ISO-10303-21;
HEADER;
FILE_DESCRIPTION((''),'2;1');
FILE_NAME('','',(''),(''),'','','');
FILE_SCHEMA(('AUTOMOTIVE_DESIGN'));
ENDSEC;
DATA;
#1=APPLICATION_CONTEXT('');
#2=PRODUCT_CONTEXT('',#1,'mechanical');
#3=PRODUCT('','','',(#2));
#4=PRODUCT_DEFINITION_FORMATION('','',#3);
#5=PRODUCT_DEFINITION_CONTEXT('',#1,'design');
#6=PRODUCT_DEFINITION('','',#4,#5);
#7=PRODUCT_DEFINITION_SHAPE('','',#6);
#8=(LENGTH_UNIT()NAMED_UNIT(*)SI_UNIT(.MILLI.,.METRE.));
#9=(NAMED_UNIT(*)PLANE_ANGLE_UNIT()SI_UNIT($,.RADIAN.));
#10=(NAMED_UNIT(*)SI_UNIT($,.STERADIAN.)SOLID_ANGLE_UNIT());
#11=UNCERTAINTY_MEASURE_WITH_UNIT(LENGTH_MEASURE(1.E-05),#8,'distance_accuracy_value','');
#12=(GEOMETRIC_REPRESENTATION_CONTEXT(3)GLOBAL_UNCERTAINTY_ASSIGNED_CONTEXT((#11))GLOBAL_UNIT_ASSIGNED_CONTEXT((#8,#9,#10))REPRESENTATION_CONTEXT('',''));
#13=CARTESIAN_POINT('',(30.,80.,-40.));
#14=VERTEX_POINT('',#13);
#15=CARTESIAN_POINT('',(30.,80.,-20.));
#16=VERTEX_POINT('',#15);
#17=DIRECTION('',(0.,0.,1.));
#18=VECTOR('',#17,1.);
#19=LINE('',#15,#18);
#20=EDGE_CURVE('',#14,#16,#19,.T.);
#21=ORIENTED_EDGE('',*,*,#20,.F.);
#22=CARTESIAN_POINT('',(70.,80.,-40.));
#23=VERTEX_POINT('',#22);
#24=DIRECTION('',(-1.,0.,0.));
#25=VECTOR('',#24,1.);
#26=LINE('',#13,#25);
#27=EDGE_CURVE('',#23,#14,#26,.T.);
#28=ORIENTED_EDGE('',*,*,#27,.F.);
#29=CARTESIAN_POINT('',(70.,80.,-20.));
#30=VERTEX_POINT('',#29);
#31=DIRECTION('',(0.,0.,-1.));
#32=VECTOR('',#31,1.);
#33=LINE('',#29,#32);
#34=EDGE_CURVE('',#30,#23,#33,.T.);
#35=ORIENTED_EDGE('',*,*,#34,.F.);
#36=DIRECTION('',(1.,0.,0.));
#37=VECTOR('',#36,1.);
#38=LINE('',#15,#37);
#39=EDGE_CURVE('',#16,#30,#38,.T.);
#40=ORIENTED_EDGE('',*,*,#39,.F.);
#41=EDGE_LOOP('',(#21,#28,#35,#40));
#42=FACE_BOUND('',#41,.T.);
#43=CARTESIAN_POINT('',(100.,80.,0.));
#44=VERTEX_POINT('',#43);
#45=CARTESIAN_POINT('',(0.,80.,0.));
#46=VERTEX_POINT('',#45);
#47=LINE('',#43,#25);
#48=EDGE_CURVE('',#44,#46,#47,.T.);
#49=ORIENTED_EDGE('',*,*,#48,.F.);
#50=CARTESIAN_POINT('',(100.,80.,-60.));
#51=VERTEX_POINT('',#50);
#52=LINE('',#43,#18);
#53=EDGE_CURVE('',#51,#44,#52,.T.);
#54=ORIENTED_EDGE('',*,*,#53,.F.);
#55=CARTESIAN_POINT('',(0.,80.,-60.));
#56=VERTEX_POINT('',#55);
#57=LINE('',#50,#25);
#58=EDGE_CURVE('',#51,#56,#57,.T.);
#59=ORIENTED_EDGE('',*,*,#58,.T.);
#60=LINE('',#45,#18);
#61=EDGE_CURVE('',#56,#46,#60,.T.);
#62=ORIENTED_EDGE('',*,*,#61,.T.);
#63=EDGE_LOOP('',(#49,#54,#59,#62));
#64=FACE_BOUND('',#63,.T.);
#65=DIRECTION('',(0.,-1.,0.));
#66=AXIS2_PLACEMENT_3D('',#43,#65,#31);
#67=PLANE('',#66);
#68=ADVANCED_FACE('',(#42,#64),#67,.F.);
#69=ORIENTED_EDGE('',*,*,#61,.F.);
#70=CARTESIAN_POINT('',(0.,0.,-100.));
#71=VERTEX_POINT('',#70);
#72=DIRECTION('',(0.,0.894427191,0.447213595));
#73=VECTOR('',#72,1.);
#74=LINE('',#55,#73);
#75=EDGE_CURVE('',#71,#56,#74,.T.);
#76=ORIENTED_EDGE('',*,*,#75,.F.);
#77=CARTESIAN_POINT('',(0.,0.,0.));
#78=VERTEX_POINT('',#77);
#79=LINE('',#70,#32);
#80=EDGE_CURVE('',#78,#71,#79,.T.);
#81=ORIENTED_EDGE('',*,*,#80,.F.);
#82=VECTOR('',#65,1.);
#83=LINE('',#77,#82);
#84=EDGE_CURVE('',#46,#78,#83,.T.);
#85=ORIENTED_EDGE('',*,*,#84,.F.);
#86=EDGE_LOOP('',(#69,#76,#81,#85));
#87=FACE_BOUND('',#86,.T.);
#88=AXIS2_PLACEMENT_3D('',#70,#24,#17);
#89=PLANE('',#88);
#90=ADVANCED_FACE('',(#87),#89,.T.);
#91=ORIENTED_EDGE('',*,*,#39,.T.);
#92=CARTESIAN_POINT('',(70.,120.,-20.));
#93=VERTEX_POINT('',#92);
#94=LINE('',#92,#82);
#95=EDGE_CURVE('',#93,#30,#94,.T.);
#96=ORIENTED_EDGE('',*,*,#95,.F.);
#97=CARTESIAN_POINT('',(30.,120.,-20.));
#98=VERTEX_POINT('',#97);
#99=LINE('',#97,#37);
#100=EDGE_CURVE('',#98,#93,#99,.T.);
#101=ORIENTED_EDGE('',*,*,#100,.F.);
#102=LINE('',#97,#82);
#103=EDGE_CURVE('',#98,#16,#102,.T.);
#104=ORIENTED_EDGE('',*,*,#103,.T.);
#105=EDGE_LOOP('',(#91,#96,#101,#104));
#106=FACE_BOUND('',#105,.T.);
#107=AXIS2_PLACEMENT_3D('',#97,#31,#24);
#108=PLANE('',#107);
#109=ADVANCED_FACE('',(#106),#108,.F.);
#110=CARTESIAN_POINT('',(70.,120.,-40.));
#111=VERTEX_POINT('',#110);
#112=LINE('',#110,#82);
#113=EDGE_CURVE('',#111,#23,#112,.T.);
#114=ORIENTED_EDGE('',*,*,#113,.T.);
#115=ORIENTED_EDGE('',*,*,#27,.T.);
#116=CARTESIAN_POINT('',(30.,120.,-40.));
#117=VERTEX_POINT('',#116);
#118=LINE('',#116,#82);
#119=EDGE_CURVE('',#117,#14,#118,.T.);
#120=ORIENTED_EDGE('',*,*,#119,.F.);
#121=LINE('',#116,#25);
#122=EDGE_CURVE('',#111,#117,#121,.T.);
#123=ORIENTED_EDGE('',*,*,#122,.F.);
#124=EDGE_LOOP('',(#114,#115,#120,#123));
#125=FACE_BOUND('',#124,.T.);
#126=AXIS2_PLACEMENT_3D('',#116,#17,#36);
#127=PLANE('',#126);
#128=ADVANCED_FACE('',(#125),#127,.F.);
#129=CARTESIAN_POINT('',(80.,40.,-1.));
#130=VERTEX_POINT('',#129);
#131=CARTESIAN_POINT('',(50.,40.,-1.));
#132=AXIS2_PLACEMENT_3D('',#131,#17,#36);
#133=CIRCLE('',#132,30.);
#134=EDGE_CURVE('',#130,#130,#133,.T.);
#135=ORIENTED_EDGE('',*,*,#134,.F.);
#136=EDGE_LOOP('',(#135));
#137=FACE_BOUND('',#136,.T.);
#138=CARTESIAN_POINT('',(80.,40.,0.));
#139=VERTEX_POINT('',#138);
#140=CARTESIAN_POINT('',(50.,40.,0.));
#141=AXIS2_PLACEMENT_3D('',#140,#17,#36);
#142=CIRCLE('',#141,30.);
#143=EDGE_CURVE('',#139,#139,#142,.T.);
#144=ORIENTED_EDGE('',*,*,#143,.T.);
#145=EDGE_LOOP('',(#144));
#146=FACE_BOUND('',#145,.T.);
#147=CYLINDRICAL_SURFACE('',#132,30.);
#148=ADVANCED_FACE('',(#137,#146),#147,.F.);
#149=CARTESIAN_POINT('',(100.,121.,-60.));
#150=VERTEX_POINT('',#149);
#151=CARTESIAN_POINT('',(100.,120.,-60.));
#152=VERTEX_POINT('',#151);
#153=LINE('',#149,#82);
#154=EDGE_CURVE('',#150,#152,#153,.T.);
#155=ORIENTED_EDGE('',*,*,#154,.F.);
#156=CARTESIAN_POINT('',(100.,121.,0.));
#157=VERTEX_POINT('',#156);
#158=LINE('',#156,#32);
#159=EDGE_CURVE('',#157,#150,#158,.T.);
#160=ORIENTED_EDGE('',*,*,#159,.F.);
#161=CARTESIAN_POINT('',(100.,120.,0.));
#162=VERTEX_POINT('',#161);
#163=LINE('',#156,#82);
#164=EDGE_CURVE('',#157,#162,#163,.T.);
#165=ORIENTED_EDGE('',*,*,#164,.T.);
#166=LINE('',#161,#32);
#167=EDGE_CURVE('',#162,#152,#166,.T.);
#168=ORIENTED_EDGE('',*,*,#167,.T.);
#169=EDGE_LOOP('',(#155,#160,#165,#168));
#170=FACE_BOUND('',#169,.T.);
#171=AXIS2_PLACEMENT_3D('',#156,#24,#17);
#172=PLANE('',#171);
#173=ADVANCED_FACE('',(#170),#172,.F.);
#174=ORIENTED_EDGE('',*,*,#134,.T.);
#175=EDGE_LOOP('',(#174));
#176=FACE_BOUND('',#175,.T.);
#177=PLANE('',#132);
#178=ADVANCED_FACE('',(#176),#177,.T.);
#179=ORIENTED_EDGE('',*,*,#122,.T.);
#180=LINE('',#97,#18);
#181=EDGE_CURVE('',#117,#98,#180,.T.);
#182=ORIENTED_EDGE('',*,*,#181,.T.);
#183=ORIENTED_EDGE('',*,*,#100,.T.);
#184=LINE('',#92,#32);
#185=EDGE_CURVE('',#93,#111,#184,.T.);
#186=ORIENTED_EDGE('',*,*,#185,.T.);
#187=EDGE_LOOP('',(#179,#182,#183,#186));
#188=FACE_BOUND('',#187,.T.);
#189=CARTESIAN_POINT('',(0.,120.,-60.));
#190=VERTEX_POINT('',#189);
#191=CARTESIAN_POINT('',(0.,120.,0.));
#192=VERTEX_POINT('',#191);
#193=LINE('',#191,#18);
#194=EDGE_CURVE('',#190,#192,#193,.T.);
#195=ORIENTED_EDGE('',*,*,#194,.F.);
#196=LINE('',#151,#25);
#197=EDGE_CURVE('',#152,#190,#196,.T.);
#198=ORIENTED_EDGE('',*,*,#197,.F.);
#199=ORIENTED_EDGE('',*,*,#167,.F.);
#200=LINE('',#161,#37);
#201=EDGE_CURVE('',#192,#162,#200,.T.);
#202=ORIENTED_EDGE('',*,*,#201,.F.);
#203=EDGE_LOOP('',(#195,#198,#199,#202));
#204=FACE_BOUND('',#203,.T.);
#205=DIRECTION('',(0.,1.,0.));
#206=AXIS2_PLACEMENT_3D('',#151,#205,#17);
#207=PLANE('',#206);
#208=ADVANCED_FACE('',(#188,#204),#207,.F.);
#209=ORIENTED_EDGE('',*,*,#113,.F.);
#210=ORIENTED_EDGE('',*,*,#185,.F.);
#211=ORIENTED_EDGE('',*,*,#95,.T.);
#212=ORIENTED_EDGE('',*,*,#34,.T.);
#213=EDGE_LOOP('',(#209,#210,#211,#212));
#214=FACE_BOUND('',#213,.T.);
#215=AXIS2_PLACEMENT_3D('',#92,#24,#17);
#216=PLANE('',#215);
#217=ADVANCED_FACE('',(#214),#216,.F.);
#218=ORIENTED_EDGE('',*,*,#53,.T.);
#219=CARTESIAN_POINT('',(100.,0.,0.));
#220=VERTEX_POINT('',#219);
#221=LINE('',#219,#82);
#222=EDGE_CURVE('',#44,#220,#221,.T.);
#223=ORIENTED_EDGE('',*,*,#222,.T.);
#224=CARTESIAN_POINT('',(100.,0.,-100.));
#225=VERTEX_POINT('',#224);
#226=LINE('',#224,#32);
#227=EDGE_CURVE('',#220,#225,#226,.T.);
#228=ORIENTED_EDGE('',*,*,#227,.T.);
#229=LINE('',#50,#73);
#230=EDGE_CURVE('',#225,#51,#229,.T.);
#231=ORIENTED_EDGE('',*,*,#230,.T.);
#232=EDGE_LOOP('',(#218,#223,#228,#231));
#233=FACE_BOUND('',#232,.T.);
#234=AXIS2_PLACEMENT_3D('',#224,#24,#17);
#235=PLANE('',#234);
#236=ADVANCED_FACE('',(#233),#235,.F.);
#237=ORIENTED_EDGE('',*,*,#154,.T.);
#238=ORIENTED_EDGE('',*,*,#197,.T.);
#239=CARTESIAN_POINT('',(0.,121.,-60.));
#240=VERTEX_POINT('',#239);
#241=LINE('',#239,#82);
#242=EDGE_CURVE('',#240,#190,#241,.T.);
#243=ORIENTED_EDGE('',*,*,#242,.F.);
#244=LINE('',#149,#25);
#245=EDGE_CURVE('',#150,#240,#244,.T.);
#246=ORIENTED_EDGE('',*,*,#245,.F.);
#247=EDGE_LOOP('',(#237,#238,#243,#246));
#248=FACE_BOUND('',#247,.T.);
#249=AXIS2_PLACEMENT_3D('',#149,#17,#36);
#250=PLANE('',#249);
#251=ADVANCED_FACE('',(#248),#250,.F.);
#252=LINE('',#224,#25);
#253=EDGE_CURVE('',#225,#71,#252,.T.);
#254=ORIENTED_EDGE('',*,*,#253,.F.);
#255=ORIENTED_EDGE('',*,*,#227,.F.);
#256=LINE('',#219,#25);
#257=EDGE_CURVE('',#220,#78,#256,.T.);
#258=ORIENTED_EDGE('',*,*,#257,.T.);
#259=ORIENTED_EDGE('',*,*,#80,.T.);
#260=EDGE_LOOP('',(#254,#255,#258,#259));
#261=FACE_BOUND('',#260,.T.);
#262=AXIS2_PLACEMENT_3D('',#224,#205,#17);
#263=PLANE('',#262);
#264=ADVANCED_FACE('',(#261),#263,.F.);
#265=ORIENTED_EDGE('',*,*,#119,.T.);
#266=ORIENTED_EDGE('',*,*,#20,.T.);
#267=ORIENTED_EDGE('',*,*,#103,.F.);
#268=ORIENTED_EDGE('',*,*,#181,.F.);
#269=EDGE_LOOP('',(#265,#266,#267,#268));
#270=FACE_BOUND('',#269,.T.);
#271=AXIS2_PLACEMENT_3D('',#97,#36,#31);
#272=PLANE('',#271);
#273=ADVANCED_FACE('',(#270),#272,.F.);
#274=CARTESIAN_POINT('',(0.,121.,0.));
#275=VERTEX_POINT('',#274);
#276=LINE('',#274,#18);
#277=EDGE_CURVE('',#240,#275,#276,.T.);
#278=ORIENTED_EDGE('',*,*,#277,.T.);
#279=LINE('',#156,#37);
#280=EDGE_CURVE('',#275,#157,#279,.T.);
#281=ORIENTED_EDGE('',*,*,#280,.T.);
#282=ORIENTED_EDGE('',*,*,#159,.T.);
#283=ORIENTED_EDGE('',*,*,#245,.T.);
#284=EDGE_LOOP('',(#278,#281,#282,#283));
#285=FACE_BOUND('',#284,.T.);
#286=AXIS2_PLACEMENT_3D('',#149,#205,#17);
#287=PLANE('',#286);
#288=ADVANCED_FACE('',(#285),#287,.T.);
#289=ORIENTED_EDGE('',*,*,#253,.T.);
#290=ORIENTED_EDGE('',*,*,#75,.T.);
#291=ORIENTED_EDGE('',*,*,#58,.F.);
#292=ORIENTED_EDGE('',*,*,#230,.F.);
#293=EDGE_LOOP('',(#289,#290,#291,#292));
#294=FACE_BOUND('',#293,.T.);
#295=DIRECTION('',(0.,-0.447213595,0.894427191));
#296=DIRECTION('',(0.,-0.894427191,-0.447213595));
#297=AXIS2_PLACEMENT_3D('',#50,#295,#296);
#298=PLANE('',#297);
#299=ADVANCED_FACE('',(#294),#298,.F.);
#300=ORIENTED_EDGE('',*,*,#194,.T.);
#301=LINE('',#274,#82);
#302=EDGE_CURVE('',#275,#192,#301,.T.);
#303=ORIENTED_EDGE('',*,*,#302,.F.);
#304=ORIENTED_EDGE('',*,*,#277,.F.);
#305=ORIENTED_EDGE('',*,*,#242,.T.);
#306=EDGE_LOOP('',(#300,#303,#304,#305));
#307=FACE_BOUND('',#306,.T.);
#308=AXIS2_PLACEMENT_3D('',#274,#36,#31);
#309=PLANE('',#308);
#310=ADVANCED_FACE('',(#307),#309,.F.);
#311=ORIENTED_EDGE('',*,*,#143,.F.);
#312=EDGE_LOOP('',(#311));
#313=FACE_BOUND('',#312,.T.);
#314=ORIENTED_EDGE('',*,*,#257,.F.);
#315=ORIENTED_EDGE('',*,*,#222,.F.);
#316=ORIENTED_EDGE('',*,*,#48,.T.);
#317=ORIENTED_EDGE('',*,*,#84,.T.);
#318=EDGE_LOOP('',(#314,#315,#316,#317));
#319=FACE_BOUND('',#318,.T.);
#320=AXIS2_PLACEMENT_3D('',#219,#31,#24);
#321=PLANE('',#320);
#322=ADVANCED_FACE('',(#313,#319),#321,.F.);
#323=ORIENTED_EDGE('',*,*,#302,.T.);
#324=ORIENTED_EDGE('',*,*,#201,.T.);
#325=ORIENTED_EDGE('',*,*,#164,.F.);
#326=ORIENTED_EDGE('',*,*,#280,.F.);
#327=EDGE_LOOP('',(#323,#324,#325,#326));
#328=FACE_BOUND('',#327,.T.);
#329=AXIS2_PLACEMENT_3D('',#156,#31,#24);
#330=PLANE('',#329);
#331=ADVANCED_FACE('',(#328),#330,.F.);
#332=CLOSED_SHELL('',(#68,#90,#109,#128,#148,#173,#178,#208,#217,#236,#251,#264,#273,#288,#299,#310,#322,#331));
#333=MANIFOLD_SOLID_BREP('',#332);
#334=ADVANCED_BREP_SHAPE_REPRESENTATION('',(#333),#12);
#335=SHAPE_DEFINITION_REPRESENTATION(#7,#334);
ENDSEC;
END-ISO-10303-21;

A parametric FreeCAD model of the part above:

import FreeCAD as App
import Part
import Sketcher

V = App.Vector


def add_polygon(sketch, points):
    """Adds a closed chain of lines whose ends are joined by coincident constraints."""
    first, n = sketch.GeometryCount, len(points)
    for a, b in zip(points, points[1:] + points[:1]):
        sketch.addGeometry(Part.LineSegment(App.Vector(*a, 0), App.Vector(*b, 0)), False)
    for i in range(n):
        sketch.addConstraint(Sketcher.Constraint("Coincident", first + i, 2, first + (i + 1) % n, 1))

doc = App.newDocument("Part")
body = doc.addObject("PartDesign::Body", "Body")

# Sketch on YZ plane
sketch1 = doc.addObject("Sketcher::SketchObject", "Sketch")
body.addObject(sketch1)
sketch1.AttachmentSupport = (doc.YZ_Plane, [""])
sketch1.MapMode = "FlatFace"
add_polygon(sketch1, [(0, 0), (0, -100), (80, -60), (80, 0)])  # lines 0-3
sketch1.addConstraint(Sketcher.Constraint("Vertical", 0))
sketch1.addConstraint(Sketcher.Constraint("Vertical", 2))
sketch1.addConstraint(Sketcher.Constraint("Horizontal", 3))
sketch1.addConstraint(Sketcher.Constraint("Coincident", 3, 2, -1, 1))
sketch1.addConstraint(Sketcher.Constraint("DistanceX", 3, 2, 3, 1, 80.0))
sketch1.addConstraint(Sketcher.Constraint("DistanceY", 0, 2, 0, 1, 100.0))
sketch1.addConstraint(Sketcher.Constraint("DistanceY", 2, 1, 2, 2, 60.0))
pad1 = doc.addObject("PartDesign::Pad", "Pad")
body.addObject(pad1)
pad1.Profile = sketch1
pad1.Length = 100

# Sketch on XY plane
sketch2 = doc.addObject("Sketcher::SketchObject", "Sketch001")
body.addObject(sketch2)
sketch2.AttachmentSupport = (doc.XY_Plane, [""])
sketch2.MapMode = "FlatFace"
sketch2.addGeometry(Part.Circle(V(50, 40, 0), V(0, 0, 1), 30), False)
sketch2.addConstraint(Sketcher.Constraint("Diameter", 0, 60.0))
sketch2.addConstraint(Sketcher.Constraint("DistanceX", -1, 1, 0, 3, 50.0))
sketch2.addConstraint(Sketcher.Constraint("DistanceY", -1, 1, 0, 3, 40.0))
pocket1 = doc.addObject("PartDesign::Pocket", "Pocket")
body.addObject(pocket1)
pocket1.Profile = sketch2
pocket1.Length = 1

# Sketch on XZ plane
sketch3 = doc.addObject("Sketcher::SketchObject", "Sketch002")
body.addObject(sketch3)
sketch3.AttachmentSupport = (doc.XZ_Plane, [""])
sketch3.MapMode = "FlatFace"
sketch3.AttachmentOffset = App.Placement(V(0, 0, -80), App.Rotation())
add_polygon(sketch3, [(70, -20), (70, -40), (30, -40), (30, -20)])  # lines 0-3
sketch3.addConstraint(Sketcher.Constraint("Vertical", 0))
sketch3.addConstraint(Sketcher.Constraint("Horizontal", 1))
sketch3.addConstraint(Sketcher.Constraint("Vertical", 2))
sketch3.addConstraint(Sketcher.Constraint("Horizontal", 3))
sketch3.addConstraint(Sketcher.Constraint("DistanceX", 1, 2, 1, 1, 40.0))
sketch3.addConstraint(Sketcher.Constraint("DistanceY", 0, 2, 0, 1, 20.0))
sketch3.addConstraint(Sketcher.Constraint("DistanceX", -1, 1, 0, 2, 70.0))
sketch3.addConstraint(Sketcher.Constraint("DistanceY", 0, 2, -1, 1, 40.0))
pad2 = doc.addObject("PartDesign::Pad", "Pad001")
body.addObject(pad2)
pad2.Profile = sketch3
pad2.Length = 40
pad2.Reversed = True

# Sketch on XZ plane
sketch4 = doc.addObject("Sketcher::SketchObject", "Sketch003")
body.addObject(sketch4)
sketch4.AttachmentSupport = (doc.XZ_Plane, [""])
sketch4.MapMode = "FlatFace"
sketch4.AttachmentOffset = App.Placement(V(0, 0, -120), App.Rotation())
add_polygon(sketch4, [(100, 0), (100, -60), (0, -60), (0, 0)])  # lines 0-3
sketch4.addConstraint(Sketcher.Constraint("Vertical", 0))
sketch4.addConstraint(Sketcher.Constraint("Horizontal", 1))
sketch4.addConstraint(Sketcher.Constraint("Vertical", 2))
sketch4.addConstraint(Sketcher.Constraint("Horizontal", 3))
sketch4.addConstraint(Sketcher.Constraint("Coincident", 2, 2, -1, 1))
sketch4.addConstraint(Sketcher.Constraint("DistanceX", 1, 2, 1, 1, 100.0))
sketch4.addConstraint(Sketcher.Constraint("DistanceY", 0, 2, 0, 1, 60.0))
pad3 = doc.addObject("PartDesign::Pad", "Pad002")
body.addObject(pad3)
pad3.Profile = sketch4
pad3.Length = 1
pad3.Reversed = True

doc.recompute()
